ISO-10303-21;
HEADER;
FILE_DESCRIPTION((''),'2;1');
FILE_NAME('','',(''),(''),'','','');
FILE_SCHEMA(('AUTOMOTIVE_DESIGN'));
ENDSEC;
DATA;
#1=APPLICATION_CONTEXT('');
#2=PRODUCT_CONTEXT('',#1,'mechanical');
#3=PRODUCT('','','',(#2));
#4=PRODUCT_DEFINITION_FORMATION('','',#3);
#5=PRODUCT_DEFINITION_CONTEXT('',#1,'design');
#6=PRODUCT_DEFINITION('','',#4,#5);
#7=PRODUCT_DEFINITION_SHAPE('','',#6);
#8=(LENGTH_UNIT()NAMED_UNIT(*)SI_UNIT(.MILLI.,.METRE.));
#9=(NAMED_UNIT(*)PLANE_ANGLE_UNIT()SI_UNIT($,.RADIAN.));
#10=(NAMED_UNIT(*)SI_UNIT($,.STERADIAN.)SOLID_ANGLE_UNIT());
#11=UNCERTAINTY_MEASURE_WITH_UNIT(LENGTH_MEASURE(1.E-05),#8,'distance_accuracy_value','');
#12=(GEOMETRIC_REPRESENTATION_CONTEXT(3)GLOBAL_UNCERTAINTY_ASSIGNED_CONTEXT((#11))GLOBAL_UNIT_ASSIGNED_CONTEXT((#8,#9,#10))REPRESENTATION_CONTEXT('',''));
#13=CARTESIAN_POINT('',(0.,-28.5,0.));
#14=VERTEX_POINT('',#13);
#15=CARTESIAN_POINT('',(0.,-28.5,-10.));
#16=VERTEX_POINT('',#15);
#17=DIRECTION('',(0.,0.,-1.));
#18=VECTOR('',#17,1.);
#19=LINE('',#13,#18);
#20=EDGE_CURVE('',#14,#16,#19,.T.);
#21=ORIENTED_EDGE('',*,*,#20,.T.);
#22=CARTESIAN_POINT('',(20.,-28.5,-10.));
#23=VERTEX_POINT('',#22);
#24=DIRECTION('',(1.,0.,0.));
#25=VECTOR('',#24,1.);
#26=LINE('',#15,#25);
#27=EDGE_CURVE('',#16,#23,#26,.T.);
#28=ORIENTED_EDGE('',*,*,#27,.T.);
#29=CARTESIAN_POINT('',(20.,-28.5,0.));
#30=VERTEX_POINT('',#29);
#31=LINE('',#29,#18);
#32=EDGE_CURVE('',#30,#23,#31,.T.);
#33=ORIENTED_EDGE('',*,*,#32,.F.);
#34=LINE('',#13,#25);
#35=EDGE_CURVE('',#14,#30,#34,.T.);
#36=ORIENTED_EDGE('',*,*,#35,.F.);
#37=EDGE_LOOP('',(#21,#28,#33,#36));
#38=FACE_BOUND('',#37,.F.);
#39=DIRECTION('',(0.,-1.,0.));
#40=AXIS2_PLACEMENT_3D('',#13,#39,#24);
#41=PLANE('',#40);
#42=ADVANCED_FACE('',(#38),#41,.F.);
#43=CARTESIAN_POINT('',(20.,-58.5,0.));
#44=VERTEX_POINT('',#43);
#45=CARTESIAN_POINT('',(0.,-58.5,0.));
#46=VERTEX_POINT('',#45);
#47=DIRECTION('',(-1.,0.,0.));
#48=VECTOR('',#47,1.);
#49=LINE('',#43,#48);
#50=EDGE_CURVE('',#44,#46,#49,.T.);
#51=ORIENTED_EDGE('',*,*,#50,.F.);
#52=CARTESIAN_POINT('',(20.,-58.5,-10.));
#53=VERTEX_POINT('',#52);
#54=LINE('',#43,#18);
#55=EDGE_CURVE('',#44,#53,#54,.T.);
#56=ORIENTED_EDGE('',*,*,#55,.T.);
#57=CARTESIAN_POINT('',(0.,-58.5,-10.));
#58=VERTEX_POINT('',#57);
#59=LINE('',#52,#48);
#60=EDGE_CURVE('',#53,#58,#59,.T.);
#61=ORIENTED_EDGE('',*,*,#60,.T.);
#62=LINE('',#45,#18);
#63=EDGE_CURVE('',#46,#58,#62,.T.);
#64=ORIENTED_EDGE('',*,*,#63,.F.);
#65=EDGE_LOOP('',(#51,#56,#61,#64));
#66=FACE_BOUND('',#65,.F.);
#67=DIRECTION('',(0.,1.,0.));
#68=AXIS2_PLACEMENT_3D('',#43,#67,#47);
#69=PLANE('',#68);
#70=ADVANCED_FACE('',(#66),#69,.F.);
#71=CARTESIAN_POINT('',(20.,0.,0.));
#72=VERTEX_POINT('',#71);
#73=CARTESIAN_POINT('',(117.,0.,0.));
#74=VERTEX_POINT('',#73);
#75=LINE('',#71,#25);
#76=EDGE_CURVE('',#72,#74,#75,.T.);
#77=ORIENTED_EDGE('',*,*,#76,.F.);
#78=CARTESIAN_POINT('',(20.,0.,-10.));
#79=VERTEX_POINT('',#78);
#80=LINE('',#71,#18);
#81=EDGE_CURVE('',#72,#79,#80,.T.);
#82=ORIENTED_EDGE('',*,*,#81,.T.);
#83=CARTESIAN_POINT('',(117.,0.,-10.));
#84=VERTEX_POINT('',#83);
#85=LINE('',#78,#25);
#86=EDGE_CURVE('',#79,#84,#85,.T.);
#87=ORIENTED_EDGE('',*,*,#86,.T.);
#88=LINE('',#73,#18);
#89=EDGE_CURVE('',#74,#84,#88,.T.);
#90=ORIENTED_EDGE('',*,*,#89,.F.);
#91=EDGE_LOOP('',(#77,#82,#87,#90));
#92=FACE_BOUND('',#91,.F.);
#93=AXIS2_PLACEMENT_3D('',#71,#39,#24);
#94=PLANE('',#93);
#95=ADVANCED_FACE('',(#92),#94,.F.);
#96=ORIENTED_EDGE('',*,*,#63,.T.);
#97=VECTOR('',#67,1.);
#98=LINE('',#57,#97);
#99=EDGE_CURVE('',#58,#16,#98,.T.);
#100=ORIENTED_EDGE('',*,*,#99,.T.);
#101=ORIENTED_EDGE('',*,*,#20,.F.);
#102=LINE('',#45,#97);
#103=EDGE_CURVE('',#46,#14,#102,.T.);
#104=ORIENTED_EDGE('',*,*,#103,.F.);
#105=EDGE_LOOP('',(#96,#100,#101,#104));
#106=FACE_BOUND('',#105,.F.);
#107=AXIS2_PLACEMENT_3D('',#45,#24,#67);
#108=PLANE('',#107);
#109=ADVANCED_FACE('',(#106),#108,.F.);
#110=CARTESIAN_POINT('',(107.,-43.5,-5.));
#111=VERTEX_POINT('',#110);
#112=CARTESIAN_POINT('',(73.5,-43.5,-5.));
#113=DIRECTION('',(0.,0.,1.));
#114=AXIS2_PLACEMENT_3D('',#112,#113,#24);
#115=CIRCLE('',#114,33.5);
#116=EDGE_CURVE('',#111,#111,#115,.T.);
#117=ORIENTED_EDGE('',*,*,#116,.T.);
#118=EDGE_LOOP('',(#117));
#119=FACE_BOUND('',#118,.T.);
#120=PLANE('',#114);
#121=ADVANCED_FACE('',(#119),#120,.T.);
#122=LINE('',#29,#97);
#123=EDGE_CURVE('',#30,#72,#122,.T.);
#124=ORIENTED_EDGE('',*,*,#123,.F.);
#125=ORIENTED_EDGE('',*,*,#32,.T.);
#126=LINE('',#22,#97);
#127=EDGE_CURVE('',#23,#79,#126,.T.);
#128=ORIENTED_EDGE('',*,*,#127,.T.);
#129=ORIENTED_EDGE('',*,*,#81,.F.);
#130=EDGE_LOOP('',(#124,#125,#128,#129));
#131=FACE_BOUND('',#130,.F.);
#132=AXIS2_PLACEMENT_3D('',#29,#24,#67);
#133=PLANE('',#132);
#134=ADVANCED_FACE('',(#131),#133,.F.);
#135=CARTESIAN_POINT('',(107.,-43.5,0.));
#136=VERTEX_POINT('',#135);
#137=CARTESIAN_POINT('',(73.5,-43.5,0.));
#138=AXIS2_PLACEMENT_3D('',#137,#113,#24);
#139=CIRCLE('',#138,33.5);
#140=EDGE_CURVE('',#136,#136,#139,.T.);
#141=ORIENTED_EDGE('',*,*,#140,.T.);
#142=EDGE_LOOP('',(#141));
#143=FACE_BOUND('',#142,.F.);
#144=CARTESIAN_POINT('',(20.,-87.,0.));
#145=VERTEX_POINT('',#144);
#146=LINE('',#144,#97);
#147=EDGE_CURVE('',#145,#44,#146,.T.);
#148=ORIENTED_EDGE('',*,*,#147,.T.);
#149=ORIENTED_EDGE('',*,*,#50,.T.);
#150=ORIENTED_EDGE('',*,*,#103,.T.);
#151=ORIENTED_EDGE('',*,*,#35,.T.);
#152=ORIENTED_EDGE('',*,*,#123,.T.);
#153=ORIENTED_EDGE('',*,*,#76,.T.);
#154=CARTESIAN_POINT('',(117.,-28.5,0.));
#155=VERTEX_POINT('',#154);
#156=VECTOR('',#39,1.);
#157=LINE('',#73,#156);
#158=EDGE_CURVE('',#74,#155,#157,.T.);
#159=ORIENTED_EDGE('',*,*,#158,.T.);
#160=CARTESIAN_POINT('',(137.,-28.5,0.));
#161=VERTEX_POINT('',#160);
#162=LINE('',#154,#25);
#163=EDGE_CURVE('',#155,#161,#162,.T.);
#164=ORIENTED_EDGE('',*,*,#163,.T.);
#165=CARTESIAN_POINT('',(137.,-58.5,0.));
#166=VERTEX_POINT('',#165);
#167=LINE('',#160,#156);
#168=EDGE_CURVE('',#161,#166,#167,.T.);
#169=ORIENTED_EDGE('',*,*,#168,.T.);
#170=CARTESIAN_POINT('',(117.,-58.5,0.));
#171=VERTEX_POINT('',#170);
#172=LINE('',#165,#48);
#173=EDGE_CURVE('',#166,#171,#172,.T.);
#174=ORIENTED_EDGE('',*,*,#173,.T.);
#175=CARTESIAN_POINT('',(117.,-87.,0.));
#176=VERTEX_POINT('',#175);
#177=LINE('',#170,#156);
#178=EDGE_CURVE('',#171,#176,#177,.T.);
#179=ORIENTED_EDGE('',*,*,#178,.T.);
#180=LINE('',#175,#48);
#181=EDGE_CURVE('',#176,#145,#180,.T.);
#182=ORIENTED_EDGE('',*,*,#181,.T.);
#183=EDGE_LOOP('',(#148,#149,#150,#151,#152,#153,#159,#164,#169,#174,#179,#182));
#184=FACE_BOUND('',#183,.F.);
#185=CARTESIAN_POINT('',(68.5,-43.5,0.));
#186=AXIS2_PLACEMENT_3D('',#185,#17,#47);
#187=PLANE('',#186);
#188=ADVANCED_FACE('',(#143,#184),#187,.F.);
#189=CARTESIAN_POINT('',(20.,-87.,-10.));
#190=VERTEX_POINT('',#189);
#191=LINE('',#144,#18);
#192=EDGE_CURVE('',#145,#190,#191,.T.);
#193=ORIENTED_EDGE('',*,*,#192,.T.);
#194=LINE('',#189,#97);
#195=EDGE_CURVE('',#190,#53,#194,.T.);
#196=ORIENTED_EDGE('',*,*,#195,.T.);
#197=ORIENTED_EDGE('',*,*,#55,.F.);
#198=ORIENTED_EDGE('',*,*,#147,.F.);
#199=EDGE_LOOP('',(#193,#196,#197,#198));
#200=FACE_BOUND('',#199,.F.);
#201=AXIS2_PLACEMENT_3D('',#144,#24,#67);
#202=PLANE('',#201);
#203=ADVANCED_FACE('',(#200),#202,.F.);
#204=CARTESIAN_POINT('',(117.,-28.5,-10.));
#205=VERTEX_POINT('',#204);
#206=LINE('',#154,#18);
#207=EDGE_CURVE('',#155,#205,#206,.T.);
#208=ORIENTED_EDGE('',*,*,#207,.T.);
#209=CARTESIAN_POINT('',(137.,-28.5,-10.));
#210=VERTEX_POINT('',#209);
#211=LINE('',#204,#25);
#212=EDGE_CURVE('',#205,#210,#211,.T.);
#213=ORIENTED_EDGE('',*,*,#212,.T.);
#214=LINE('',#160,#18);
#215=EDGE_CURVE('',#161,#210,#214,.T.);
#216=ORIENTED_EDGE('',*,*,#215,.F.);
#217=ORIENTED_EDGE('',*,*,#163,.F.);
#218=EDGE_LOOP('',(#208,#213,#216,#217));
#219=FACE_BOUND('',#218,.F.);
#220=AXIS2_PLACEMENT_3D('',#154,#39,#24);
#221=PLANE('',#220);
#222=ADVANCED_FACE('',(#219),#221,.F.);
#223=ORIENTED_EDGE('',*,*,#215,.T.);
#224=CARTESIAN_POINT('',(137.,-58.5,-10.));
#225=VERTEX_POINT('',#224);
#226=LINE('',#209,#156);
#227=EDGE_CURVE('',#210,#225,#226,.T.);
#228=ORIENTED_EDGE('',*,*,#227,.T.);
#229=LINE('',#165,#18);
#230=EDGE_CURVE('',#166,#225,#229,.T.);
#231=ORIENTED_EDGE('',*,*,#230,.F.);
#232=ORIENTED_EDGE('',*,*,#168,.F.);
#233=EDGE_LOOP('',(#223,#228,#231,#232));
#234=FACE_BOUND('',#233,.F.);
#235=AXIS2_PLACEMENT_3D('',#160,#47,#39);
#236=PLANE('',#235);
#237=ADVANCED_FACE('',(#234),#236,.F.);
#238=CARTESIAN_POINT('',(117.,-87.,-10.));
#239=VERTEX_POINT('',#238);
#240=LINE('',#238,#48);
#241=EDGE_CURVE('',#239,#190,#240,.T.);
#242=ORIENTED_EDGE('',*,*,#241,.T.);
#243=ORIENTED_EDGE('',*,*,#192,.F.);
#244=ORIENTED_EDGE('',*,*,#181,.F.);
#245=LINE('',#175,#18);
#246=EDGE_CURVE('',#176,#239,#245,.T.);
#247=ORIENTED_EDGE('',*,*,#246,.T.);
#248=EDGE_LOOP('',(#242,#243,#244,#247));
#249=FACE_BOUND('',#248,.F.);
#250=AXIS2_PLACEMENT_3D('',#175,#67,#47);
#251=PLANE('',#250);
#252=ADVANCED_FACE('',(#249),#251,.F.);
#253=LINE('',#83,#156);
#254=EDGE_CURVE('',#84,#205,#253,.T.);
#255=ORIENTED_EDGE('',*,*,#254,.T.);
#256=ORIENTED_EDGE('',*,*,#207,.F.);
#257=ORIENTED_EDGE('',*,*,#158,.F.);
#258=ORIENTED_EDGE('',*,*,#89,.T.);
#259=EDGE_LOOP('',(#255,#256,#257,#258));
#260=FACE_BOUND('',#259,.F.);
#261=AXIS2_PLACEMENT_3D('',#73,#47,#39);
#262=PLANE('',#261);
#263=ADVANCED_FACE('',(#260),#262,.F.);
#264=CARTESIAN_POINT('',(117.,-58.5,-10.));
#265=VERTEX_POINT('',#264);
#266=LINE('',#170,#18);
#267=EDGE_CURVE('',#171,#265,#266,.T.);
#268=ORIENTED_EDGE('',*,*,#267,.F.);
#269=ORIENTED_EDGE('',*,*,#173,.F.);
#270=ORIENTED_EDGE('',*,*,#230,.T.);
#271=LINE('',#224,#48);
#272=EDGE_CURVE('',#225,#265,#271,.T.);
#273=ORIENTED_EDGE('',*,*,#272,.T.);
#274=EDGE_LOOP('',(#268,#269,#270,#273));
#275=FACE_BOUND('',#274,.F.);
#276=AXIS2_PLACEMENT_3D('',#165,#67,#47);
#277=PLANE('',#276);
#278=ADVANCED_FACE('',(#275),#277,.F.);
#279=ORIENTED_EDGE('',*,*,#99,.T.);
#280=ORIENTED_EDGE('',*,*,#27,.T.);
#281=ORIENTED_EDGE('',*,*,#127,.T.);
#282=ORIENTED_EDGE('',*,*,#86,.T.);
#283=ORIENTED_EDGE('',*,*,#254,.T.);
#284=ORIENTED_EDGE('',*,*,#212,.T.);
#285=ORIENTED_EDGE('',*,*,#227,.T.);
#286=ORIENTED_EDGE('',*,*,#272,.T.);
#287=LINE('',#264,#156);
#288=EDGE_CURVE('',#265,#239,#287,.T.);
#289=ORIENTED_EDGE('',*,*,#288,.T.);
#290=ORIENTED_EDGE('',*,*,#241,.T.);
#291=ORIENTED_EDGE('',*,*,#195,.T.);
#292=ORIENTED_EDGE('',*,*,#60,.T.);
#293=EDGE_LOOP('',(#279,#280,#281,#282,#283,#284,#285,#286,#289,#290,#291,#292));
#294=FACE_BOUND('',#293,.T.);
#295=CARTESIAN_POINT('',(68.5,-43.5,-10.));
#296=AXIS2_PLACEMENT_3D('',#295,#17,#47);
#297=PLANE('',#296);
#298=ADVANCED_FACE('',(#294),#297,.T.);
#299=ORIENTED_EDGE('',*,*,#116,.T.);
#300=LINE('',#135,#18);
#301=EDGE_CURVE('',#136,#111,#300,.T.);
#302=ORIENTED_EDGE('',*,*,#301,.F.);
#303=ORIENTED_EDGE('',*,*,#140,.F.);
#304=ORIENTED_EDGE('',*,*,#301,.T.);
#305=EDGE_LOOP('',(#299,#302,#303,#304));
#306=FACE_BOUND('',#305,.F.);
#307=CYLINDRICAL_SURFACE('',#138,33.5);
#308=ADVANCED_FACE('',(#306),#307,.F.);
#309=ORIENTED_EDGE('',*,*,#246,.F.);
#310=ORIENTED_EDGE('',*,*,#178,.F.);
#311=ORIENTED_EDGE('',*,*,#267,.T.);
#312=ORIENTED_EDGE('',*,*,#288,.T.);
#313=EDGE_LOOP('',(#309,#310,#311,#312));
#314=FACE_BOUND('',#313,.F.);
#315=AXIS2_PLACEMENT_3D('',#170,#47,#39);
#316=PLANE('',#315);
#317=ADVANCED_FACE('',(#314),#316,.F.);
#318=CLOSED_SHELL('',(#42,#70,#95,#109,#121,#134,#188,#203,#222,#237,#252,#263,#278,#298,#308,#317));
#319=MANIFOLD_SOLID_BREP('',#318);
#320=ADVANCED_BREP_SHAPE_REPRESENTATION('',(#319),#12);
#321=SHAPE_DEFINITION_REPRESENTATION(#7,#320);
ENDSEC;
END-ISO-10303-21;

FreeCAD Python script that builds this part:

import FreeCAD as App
import Part
import Sketcher

V = App.Vector
Q = App.Units.Quantity


def add_polygon(sketch, points):
    """Adds a closed chain of lines whose ends are joined by coincident constraints."""
    first, n = sketch.GeometryCount, len(points)
    for a, b in zip(points, points[1:] + points[:1]):
        sketch.addGeometry(Part.LineSegment(App.Vector(*a, 0), App.Vector(*b, 0)), False)
    for i in range(n):
        sketch.addConstraint(Sketcher.Constraint("Coincident", first + i, 2, first + (i + 1) % n, 1))

doc = App.newDocument("Part")
body = doc.addObject("PartDesign::Body", "Body")

sketch1 = body.newObject("Sketcher::SketchObject", "Sketch")
sketch1.AttachmentSupport = (doc.getObject("XY_Plane"), [""])
sketch1.MapMode = "FlatFace"
add_polygon(sketch1, [(20, -28.5), (0, -28.5), (0, -58.5), (20, -58.5), (20, -87), (117, -87), (117, -58.5), (137, -58.5), (137, -28.5), (117, -28.5), (117, 0), (20, 0)])
sketch1.addConstraint([
    Sketcher.Constraint("Horizontal", 0),
    Sketcher.Constraint("Vertical", 1),
    Sketcher.Constraint("Horizontal", 2),
    Sketcher.Constraint("Vertical", 3),
    Sketcher.Constraint("Horizontal", 4),
    Sketcher.Constraint("Vertical", 5),
    Sketcher.Constraint("Horizontal", 6),
    Sketcher.Constraint("Vertical", 7),
    Sketcher.Constraint("Horizontal", 8),
    Sketcher.Constraint("Vertical", 9),
    Sketcher.Constraint("Horizontal", 10),
    Sketcher.Constraint("Vertical", 11),
    Sketcher.Constraint("PointOnObject", 0, 2, -2),
    Sketcher.Constraint("PointOnObject", 9, 2, -1),
    Sketcher.Constraint("Horizontal", 2, 2, 5, 2),
    Sketcher.Constraint("Horizontal", 0, 2, 7, 2),
    Sketcher.Constraint("Vertical", 5, 2, 8, 2),
    Sketcher.Constraint("Vertical", 3, 2, 10, 2),
    Sketcher.Constraint("Equal", 2, 6),
    Sketcher.Constraint("Equal", 5, 9),
    Sketcher.Constraint("DistanceX", 0, 2, 0, 1, Q("20 mm")),
    Sketcher.Constraint("DistanceX", 4, 1, 4, 2, Q("97 mm")),
    Sketcher.Constraint("DistanceY", 1, 2, 1, 1, Q("30 mm")),
    Sketcher.Constraint("DistanceY", 3, 2, 3, 1, Q("28.5 mm")),
])
pad1 = body.newObject("PartDesign::Pad", "Pad")
pad1.Profile = sketch1
pad1.Length = 10
pad1.Reversed = True

sketch2 = body.newObject("Sketcher::SketchObject", "Sketch001")
sketch2.AttachmentSupport = (doc.getObject("XY_Plane"), [""])
sketch2.MapMode = "FlatFace"
sketch2.addGeometry(Part.Circle(V(73.5, -43.5, 0), V(0, 0, 1), 33.5), False)
sketch2.addConstraint([
    Sketcher.Constraint("Diameter", 0, Q("67 mm")),
    Sketcher.Constraint("DistanceX", -1, 1, 0, 3, Q("73.5 mm")),
    Sketcher.Constraint("DistanceY", 0, 3, -1, 1, Q("43.5 mm")),
])
pocket1 = body.newObject("PartDesign::Pocket", "Pocket")
pocket1.Profile = sketch2
pocket1.Length = 5

doc.recompute()
